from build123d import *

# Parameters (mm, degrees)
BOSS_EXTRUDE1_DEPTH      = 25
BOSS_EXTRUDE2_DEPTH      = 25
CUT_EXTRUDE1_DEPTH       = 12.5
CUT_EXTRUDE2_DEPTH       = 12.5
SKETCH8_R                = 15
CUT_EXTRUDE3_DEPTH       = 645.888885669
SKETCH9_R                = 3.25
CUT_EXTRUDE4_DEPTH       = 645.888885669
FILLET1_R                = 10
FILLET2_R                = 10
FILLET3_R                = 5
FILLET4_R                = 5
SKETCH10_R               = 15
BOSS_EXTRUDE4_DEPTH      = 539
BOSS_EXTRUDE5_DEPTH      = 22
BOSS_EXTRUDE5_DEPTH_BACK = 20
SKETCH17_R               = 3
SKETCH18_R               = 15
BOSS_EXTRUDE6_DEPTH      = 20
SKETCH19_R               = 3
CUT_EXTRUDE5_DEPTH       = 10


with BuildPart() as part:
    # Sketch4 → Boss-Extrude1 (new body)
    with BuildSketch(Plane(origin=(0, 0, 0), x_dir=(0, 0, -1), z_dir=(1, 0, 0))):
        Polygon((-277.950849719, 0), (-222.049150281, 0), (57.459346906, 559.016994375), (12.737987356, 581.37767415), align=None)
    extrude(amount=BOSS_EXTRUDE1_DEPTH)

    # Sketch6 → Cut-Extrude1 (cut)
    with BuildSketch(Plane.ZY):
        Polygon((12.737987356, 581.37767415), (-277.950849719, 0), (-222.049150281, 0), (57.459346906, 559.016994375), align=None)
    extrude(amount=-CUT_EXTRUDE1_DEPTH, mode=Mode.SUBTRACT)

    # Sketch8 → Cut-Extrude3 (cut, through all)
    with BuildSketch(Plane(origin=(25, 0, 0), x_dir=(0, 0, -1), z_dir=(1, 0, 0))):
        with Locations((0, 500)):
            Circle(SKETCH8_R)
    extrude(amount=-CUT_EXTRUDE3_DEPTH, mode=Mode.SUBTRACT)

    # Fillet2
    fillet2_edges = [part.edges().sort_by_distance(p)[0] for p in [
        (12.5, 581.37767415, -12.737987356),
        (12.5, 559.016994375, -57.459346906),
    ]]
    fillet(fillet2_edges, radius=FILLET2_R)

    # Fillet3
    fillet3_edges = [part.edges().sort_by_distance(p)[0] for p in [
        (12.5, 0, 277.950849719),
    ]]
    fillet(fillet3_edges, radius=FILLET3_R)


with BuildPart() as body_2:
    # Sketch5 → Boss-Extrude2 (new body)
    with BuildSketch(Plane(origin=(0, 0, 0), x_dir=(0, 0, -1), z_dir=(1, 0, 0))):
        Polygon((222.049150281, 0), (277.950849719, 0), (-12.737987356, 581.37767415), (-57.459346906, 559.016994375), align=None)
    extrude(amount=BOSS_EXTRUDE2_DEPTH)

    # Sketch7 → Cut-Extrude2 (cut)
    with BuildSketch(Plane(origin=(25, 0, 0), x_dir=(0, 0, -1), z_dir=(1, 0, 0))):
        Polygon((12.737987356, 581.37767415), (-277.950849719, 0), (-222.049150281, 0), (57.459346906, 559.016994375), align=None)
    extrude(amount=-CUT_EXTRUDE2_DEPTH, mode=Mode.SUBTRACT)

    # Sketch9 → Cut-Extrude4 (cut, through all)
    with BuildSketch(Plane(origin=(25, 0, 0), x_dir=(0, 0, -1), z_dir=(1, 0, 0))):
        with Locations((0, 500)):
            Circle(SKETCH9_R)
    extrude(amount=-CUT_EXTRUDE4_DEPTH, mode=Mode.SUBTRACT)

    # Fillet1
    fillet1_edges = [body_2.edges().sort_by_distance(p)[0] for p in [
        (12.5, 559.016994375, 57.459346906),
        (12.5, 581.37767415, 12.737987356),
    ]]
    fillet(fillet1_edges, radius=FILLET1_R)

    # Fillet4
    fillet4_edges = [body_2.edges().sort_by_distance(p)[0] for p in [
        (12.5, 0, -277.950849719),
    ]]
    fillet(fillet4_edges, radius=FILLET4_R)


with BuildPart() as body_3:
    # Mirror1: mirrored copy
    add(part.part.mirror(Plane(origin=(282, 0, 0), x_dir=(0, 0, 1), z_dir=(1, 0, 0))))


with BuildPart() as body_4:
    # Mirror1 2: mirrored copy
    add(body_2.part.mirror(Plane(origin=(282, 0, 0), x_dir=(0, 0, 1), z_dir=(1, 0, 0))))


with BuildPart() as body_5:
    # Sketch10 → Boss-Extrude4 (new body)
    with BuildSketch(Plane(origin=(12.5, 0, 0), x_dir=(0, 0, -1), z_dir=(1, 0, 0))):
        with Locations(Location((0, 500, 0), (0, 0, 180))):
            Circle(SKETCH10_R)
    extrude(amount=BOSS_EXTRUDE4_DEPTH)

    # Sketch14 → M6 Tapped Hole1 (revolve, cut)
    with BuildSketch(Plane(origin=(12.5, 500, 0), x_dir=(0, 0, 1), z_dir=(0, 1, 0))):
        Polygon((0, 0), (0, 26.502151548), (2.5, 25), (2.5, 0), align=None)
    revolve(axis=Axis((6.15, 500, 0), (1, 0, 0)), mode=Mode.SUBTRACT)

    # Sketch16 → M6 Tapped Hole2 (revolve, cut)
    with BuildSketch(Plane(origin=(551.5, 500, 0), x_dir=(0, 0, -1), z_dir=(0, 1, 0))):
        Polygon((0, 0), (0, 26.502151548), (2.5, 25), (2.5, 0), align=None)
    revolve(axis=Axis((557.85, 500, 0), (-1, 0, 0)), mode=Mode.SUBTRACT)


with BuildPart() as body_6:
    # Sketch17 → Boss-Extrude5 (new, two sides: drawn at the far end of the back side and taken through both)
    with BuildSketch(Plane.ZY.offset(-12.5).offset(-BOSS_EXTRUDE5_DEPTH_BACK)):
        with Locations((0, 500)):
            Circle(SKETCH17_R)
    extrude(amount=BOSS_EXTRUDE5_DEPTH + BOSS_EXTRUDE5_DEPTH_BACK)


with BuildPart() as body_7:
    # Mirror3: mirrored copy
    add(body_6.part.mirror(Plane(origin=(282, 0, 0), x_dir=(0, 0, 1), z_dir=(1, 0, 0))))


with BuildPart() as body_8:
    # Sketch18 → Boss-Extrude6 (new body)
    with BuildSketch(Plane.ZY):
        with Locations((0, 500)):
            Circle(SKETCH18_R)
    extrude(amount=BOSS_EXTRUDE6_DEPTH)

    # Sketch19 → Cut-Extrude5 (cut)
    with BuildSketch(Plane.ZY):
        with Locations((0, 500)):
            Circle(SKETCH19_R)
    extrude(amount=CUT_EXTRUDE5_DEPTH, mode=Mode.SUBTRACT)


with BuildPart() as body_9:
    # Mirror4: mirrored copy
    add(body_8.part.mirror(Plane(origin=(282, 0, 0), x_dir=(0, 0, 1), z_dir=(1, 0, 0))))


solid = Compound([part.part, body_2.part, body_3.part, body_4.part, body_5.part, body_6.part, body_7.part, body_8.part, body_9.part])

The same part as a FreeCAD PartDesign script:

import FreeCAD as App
import Part
import Sketcher
from FreeCAD import Vector
Q = App.Units.Quantity


def edges_at(feature, points):
    """Names of the edges that pass closest to the given points."""
    edges = feature.Shape.Edges
    near = lambda p: min(range(len(edges)), key=lambda i: edges[i].distToShape(Part.Vertex(*p))[0])
    return sorted({f"Edge{near(p) + 1}" for p in points})


def add_polygon(sketch, points):
    """Adds a closed chain of lines whose ends are joined by coincident constraints."""
    first, n = sketch.GeometryCount, len(points)
    for a, b in zip(points, points[1:] + points[:1]):
        sketch.addGeometry(Part.LineSegment(App.Vector(*a, 0), App.Vector(*b, 0)), False)
    for i in range(n):
        sketch.addConstraint(Sketcher.Constraint("Coincident", first + i, 2, first + (i + 1) % n, 1))

doc = App.newDocument("Part")
body = doc.addObject("PartDesign::Body", "Body")

sketch1 = doc.addObject("Sketcher::SketchObject", "Sketch")
body.addObject(sketch1)
sketch1.AttachmentSupport = (doc.YZ_Plane, [""])
sketch1.MapMode = "FlatFace"
add_polygon(sketch1, [(0, 277.95085), (0, 222.04915), (559.016994, -57.459347), (581.377674, -12.737987)])
sketch1.addConstraint([
    Sketcher.Constraint("Vertical", 0),
    Sketcher.Constraint("PointOnObject", 0, 2, -2),
    Sketcher.Constraint("Perpendicular", 1, 2),
    Sketcher.Constraint("Perpendicular", 2, 3),
    Sketcher.Constraint("Distance", 1, 625.0),
    Sketcher.Constraint("Distance", 2, 50.0),
    Sketcher.Constraint("Distance", 3, 650.0),
    Sketcher.Constraint("DistanceY", -1, 1, 0, 2, 222.04915),
])
pad1 = doc.addObject("PartDesign::Pad", "Pad")
body.addObject(pad1)
pad1.Profile = sketch1
pad1.Length = 25

sketch2 = doc.addObject("Sketcher::SketchObject", "Sketch001")
body.addObject(sketch2)
sketch2.AttachmentSupport = (doc.YZ_Plane, [""])
sketch2.MapMode = "FlatFace"
add_polygon(sketch2, [(581.377674, 12.737987), (0, -277.95085), (0, -222.04915), (559.016994, 57.459347)])
sketch2.addConstraint([
    Sketcher.Constraint("Vertical", 1),
    Sketcher.Constraint("PointOnObject", 0, 2, -2),
    Sketcher.Constraint("Parallel", 0, 2),
    Sketcher.Constraint("Perpendicular", 2, 3),
    Sketcher.Constraint("Distance", 0, 650.0),
    Sketcher.Constraint("Distance", 2, 625.0),
    Sketcher.Constraint("Distance", 3, 50.0),
    Sketcher.Constraint("DistanceY", 0, 2, -1, 1, 277.95085),
])
pocket1 = doc.addObject("PartDesign::Pocket", "Pocket")
body.addObject(pocket1)
pocket1.Profile = sketch2
pocket1.Length = 12.5
pocket1.Reversed = True

sketch3 = doc.addObject("Sketcher::SketchObject", "Sketch002")
body.addObject(sketch3)
sketch3.AttachmentSupport = (doc.YZ_Plane, [""])
sketch3.MapMode = "FlatFace"
sketch3.AttachmentOffset = App.Placement(Vector(0, 0, 25), App.Rotation())
sketch3.addGeometry(Part.Circle(Vector(500, 0, 0), Vector(0, 0, 1), 15), False)
sketch3.addConstraint([
    Sketcher.Constraint("PointOnObject", 0, 3, -1),
    Sketcher.Constraint("Diameter", 0, 30.0),
    Sketcher.Constraint("DistanceX", -1, 1, 0, 3, 500.0),
])
pocket2 = doc.addObject("PartDesign::Pocket", "Pocket001")
body.addObject(pocket2)
pocket2.Profile = sketch3
pocket2.Type = "ThroughAll"
doc.recompute()

fillet = doc.addObject("PartDesign::Fillet", "Fillet")
body.addObject(fillet)
fillet.Base = (pocket2, edges_at(pocket2, [(12.5, 581.378, -12.738), (12.5, 559.017, -57.459)]))
fillet.Radius = 10
doc.recompute()

fillet2 = doc.addObject("PartDesign::Fillet", "Fillet001")
body.addObject(fillet2)
fillet2.Base = (fillet, edges_at(fillet, [(12.5, 0, 277.951)]))
fillet2.Radius = 5
body2 = doc.addObject("PartDesign::Body", "Body001")

sketch4 = doc.addObject("Sketcher::SketchObject", "Sketch003")
body2.addObject(sketch4)
sketch4.AttachmentSupport = (doc.getObject("YZ_Plane001"), [""])
sketch4.MapMode = "FlatFace"
add_polygon(sketch4, [(0, -222.04915), (0, -277.95085), (581.377674, 12.737987), (559.016994, 57.459347)])
sketch4.addConstraint([
    Sketcher.Constraint("Vertical", 0),
    Sketcher.Constraint("PointOnObject", 0, 2, -2),
    Sketcher.Constraint("Perpendicular", 1, 2),
    Sketcher.Constraint("Perpendicular", 2, 3),
    Sketcher.Constraint("Distance", 1, 650.0),
    Sketcher.Constraint("Distance", 2, 50.0),
    Sketcher.Constraint("Distance", 3, 625.0),
    Sketcher.Constraint("DistanceY", 0, 2, -1, 1, 277.95085),
])
pad2 = doc.addObject("PartDesign::Pad", "Pad001")
body2.addObject(pad2)
pad2.Profile = sketch4
pad2.Length = 25

sketch5 = doc.addObject("Sketcher::SketchObject", "Sketch004")
body2.addObject(sketch5)
sketch5.AttachmentSupport = (doc.getObject("YZ_Plane001"), [""])
sketch5.MapMode = "FlatFace"
sketch5.AttachmentOffset = App.Placement(Vector(0, 0, 25), App.Rotation())
add_polygon(sketch5, [(581.377674, -12.737987), (0, 277.95085), (0, 222.04915), (559.016994, -57.459347)])
sketch5.addConstraint([
    Sketcher.Constraint("Vertical", 1),
    Sketcher.Constraint("PointOnObject", 0, 2, -2),
    Sketcher.Constraint("Parallel", 0, 2),
    Sketcher.Constraint("Perpendicular", 2, 3),
    Sketcher.Constraint("Distance", 0, 650.0),
    Sketcher.Constraint("Distance", 2, 625.0),
    Sketcher.Constraint("Distance", 3, 50.0),
    Sketcher.Constraint("DistanceY", -1, 1, 0, 2, 277.95085),
])
pocket3 = doc.addObject("PartDesign::Pocket", "Pocket002")
body2.addObject(pocket3)
pocket3.Profile = sketch5
pocket3.Length = 12.5

sketch6 = doc.addObject("Sketcher::SketchObject", "Sketch005")
body2.addObject(sketch6)
sketch6.AttachmentSupport = (doc.getObject("YZ_Plane001"), [""])
sketch6.MapMode = "FlatFace"
sketch6.AttachmentOffset = App.Placement(Vector(0, 0, 25), App.Rotation())
sketch6.addGeometry(Part.Circle(Vector(500, 0, 0), Vector(0, 0, 1), 3.25), False)
sketch6.addConstraint([
    Sketcher.Constraint("PointOnObject", 0, 3, -1),
    Sketcher.Constraint("Diameter", 0, 6.5),
    Sketcher.Constraint("DistanceX", -1, 1, 0, 3, 500.0),
])
pocket4 = doc.addObject("PartDesign::Pocket", "Pocket003")
body2.addObject(pocket4)
pocket4.Profile = sketch6
pocket4.Type = "ThroughAll"
doc.recompute()

fillet3 = doc.addObject("PartDesign::Fillet", "Fillet002")
body2.addObject(fillet3)
fillet3.Base = (pocket4, edges_at(pocket4, [(12.5, 559.017, 57.459), (12.5, 581.378, 12.738)]))
fillet3.Radius = 10
doc.recompute()

fillet4 = doc.addObject("PartDesign::Fillet", "Fillet003")
body2.addObject(fillet4)
fillet4.Base = (fillet3, edges_at(fillet3, [(12.5, 0, -277.951)]))
fillet4.Radius = 5
body3 = doc.addObject("PartDesign::Body", "Body002")
doc.recompute()

mirroring = doc.addObject("Part::Mirroring", "Mirroring")
mirroring.Source = body
mirroring.Base = Vector(282, 0, 0)
mirroring.Normal = Vector(1, 0, 0)
body3.BaseFeature = mirroring
doc.recompute()
body4 = doc.addObject("PartDesign::Body", "Body003")
doc.recompute()

mirroring2 = doc.addObject("Part::Mirroring", "Mirroring001")
mirroring2.Source = body2
mirroring2.Base = Vector(282, 0, 0)
mirroring2.Normal = Vector(1, 0, 0)
body4.BaseFeature = mirroring2
doc.recompute()
body5 = doc.addObject("PartDesign::Body", "Body004")

sketch7 = doc.addObject("Sketcher::SketchObject", "Sketch006")
body5.addObject(sketch7)
sketch7.AttachmentSupport = (doc.getObject("YZ_Plane004"), [""])
sketch7.MapMode = "FlatFace"
sketch7.AttachmentOffset = App.Placement(Vector(0, 0, 12.5), App.Rotation())
sketch7.addGeometry(Part.Circle(Vector(500, 0, 0), Vector(0, 0, 1), 15), False)
sketch7.addConstraint([
    Sketcher.Constraint("PointOnObject", 0, 3, -1),
    Sketcher.Constraint("Diameter", 0, 30.0),
    Sketcher.Constraint("DistanceX", -1, 1, 0, 3, 500.0),
])
pad3 = doc.addObject("PartDesign::Pad", "Pad002")
body5.addObject(pad3)
pad3.Profile = sketch7
pad3.Length = 539

sketch8 = doc.addObject("Sketcher::SketchObject", "Sketch007")
body5.addObject(sketch8)
sketch8.AttachmentSupport = (doc.getObject("XZ_Plane004"), [""])
sketch8.MapMode = "FlatFace"
sketch8.AttachmentOffset = App.Placement(Vector(0, 0, -500), App.Rotation())
add_polygon(sketch8, [(39.002152, 0), (12.5, 0), (12.5, 2.5), (37.5, 2.5)])
sketch8.addConstraint([
    Sketcher.Constraint("Horizontal", 0),
    Sketcher.Constraint("Vertical", 1),
    Sketcher.Constraint("Horizontal", 2),
    Sketcher.Constraint("PointOnObject", 0, 2, -1),
    Sketcher.Constraint("DistanceX", 2, 1, 2, 2, 25.0),
    Sketcher.Constraint("Angle", 3, Q("-59 deg")),
    Sketcher.Constraint("DistanceY", 1, 1, 1, 2, 2.5),
    Sketcher.Constraint("DistanceX", -1, 1, 0, 2, 12.5),
])
groove = doc.addObject("PartDesign::Groove", "Groove")
body5.addObject(groove)
groove.Profile = sketch8
groove.ReferenceAxis = (sketch8, ["H_Axis"])
groove.Angle = 360

sketch9 = doc.addObject("Sketcher::SketchObject", "Sketch008")
body5.addObject(sketch9)
sketch9.AttachmentSupport = (doc.getObject("XZ_Plane004"), [""])
sketch9.MapMode = "FlatFace"
sketch9.AttachmentOffset = App.Placement(Vector(0, 0, -500), App.Rotation())
add_polygon(sketch9, [(524.997848, 0), (551.5, 0), (551.5, -2.5), (526.5, -2.5)])
sketch9.addConstraint([
    Sketcher.Constraint("Horizontal", 0),
    Sketcher.Constraint("Vertical", 1),
    Sketcher.Constraint("Horizontal", 2),
    Sketcher.Constraint("PointOnObject", 0, 2, -1),
    Sketcher.Constraint("DistanceX", 2, 2, 2, 1, 25.0),
    Sketcher.Constraint("Angle", 3, Q("121 deg")),
    Sketcher.Constraint("DistanceY", 1, 2, 1, 1, 2.5),
    Sketcher.Constraint("DistanceX", -1, 1, 0, 2, 551.5),
])
groove2 = doc.addObject("PartDesign::Groove", "Groove001")
body5.addObject(groove2)
groove2.Profile = sketch9
groove2.ReferenceAxis = (sketch9, ["H_Axis"])
groove2.Angle = 360
body6 = doc.addObject("PartDesign::Body", "Body005")

sketch10 = doc.addObject("Sketcher::SketchObject", "Sketch009")
body6.addObject(sketch10)
sketch10.AttachmentSupport = (doc.getObject("YZ_Plane005"), [""])
sketch10.MapMode = "FlatFace"
sketch10.AttachmentOffset = App.Placement(Vector(0, 0, 12.5), App.Rotation())
sketch10.addGeometry(Part.Circle(Vector(500, 0, 0), Vector(0, 0, 1), 3), False)
sketch10.addConstraint([
    Sketcher.Constraint("PointOnObject", 0, 3, -1),
    Sketcher.Constraint("Diameter", 0, 6.0),
    Sketcher.Constraint("DistanceX", -1, 1, 0, 3, 500.0),
])
pad4 = doc.addObject("PartDesign::Pad", "Pad003")
body6.addObject(pad4)
pad4.Profile = sketch10
pad4.Type = "TwoLengths"
pad4.Length = 22
pad4.Length2 = 20
pad4.Reversed = True
body7 = doc.addObject("PartDesign::Body", "Body006")
doc.recompute()

mirroring3 = doc.addObject("Part::Mirroring", "Mirroring002")
mirroring3.Source = body6
mirroring3.Base = Vector(282, 0, 0)
mirroring3.Normal = Vector(1, 0, 0)
body7.BaseFeature = mirroring3
doc.recompute()
body8 = doc.addObject("PartDesign::Body", "Body007")

sketch11 = doc.addObject("Sketcher::SketchObject", "Sketch010")
body8.addObject(sketch11)
sketch11.AttachmentSupport = (doc.getObject("YZ_Plane007"), [""])
sketch11.MapMode = "FlatFace"
sketch11.addGeometry(Part.Circle(Vector(500, 0, 0), Vector(0, 0, 1), 15), False)
sketch11.addConstraint([
    Sketcher.Constraint("PointOnObject", 0, 3, -1),
    Sketcher.Constraint("Diameter", 0, 30.0),
    Sketcher.Constraint("DistanceX", -1, 1, 0, 3, 500.0),
])
pad5 = doc.addObject("PartDesign::Pad", "Pad004")
body8.addObject(pad5)
pad5.Profile = sketch11
pad5.Length = 20
pad5.Reversed = True

sketch12 = doc.addObject("Sketcher::SketchObject", "Sketch011")
body8.addObject(sketch12)
sketch12.AttachmentSupport = (doc.getObject("YZ_Plane007"), [""])
sketch12.MapMode = "FlatFace"
sketch12.addGeometry(Part.Circle(Vector(500, 0, 0), Vector(0, 0, 1), 3), False)
sketch12.addConstraint([
    Sketcher.Constraint("PointOnObject", 0, 3, -1),
    Sketcher.Constraint("Diameter", 0, 6.0),
    Sketcher.Constraint("DistanceX", -1, 1, 0, 3, 500.0),
])
pocket5 = doc.addObject("PartDesign::Pocket", "Pocket004")
body8.addObject(pocket5)
pocket5.Profile = sketch12
pocket5.Length = 10
body9 = doc.addObject("PartDesign::Body", "Body008")
doc.recompute()

mirroring4 = doc.addObject("Part::Mirroring", "Mirroring003")
mirroring4.Source = body8
mirroring4.Base = Vector(282, 0, 0)
mirroring4.Normal = Vector(1, 0, 0)
body9.BaseFeature = mirroring4
doc.recompute()
mirroring.Visibility = False
mirroring2.Visibility = False
mirroring3.Visibility = False
mirroring4.Visibility = False

doc.recompute()
